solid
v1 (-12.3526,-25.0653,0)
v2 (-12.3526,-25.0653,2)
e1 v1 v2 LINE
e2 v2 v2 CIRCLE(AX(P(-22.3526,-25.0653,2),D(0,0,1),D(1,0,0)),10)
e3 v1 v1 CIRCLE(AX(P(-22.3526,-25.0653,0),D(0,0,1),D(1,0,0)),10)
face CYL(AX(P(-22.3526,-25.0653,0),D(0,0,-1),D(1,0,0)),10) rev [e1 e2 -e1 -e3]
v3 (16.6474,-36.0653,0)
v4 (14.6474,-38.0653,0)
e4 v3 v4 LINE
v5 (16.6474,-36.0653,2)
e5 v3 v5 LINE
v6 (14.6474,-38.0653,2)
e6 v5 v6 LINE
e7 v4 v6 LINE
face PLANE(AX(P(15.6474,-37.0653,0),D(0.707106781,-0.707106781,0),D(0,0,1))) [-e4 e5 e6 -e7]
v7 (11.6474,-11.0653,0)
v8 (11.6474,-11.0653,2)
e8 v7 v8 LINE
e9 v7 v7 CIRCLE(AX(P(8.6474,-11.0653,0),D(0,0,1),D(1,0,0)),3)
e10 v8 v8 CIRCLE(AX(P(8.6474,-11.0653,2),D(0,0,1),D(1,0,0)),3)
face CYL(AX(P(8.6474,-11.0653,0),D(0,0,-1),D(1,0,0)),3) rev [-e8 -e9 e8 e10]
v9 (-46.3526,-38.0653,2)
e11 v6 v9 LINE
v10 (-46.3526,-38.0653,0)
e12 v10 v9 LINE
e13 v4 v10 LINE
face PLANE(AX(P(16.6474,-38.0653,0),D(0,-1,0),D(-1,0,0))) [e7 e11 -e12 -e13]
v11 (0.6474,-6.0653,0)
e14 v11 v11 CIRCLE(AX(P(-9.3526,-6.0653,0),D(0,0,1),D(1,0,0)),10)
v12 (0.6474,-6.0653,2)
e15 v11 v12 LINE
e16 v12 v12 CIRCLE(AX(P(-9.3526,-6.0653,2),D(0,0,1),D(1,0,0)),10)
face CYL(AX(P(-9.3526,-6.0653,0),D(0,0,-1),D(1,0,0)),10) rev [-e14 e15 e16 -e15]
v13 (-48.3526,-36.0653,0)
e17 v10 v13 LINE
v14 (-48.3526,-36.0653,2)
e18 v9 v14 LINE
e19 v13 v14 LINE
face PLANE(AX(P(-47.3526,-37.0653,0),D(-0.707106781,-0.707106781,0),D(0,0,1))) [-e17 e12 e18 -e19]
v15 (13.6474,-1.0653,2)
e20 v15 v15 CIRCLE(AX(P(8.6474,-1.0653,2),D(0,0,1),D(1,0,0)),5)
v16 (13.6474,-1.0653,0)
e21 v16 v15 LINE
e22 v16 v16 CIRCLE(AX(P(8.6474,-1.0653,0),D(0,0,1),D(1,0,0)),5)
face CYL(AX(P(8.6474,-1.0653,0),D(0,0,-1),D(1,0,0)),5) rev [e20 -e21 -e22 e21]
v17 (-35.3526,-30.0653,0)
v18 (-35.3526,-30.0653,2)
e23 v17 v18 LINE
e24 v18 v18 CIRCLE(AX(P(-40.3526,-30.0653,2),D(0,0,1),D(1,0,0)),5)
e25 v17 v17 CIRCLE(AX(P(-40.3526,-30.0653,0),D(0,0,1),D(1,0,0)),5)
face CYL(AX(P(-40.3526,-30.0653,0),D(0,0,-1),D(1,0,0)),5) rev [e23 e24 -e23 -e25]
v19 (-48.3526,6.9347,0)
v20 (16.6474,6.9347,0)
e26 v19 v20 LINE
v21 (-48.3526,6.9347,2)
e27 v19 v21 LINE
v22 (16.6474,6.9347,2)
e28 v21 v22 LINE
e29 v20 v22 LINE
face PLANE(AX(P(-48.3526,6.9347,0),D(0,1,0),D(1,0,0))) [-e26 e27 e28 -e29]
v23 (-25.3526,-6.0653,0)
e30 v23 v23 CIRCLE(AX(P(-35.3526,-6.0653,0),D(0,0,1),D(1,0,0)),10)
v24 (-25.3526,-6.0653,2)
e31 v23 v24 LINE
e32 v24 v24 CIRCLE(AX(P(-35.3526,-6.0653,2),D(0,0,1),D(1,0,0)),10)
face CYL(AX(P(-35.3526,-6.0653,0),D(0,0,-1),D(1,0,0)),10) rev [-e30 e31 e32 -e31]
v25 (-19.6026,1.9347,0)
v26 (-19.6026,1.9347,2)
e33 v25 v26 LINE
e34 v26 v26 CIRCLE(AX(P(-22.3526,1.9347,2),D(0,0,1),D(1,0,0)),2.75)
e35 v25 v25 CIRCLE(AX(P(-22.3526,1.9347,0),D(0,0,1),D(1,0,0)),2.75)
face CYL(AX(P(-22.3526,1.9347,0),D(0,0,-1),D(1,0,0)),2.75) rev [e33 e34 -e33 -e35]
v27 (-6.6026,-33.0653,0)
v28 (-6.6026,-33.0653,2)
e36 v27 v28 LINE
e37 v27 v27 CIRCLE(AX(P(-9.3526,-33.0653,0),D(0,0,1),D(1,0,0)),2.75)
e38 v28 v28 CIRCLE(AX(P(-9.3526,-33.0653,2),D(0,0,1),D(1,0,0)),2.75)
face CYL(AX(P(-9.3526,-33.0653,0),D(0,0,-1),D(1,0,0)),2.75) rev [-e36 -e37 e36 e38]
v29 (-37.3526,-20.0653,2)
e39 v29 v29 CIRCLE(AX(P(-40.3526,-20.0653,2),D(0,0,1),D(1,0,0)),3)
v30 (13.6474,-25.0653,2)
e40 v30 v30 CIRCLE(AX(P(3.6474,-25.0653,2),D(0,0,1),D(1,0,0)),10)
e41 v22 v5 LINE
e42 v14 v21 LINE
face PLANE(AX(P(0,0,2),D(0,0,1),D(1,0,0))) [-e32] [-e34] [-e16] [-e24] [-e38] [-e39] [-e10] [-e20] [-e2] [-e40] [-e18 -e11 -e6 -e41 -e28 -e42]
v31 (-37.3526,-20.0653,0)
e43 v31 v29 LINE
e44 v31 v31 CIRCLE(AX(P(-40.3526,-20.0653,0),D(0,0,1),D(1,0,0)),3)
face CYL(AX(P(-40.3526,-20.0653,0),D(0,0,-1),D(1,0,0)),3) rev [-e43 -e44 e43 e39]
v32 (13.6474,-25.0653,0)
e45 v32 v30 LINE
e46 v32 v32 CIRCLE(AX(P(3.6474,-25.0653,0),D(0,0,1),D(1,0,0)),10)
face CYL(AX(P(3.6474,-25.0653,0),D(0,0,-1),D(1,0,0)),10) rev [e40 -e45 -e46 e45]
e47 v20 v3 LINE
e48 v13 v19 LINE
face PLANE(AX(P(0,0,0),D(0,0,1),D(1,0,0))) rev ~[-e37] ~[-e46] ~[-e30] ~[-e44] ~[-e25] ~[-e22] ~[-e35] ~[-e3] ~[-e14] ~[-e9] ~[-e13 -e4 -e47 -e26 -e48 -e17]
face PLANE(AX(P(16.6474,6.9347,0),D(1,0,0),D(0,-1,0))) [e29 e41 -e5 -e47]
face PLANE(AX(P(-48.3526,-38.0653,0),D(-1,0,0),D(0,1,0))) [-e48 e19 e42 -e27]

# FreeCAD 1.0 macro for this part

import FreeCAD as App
import Part
import Sketcher
Q = App.Units.Quantity


def edges_at(feature, points):
    """Names of the edges that pass closest to the given points."""
    edges = feature.Shape.Edges
    near = lambda p: min(range(len(edges)), key=lambda i: edges[i].distToShape(Part.Vertex(*p))[0])
    return sorted({f"Edge{near(p) + 1}" for p in points})

doc = App.newDocument("Part")
body = doc.addObject("PartDesign::Body", "Body")

sketch1 = body.newObject("Sketcher::SketchObject", "Sketch")
sketch1.AttachmentSupport = (doc.getObject("XY_Plane"), [""])
sketch1.MapMode = "FlatFace"
sketch1.addGeometry(Part.LineSegment(App.Vector(16.6, 6.9, 0), App.Vector(-48.4, 6.9, 0)), False)
sketch1.addGeometry(Part.LineSegment(App.Vector(-48.4, 6.9, 0), App.Vector(-48.4, -38.1, 0)), False)
sketch1.addGeometry(Part.LineSegment(App.Vector(-48.4, -38.1, 0), App.Vector(16.6, -38.1, 0)), False)
sketch1.addGeometry(Part.LineSegment(App.Vector(16.6, -38.1, 0), App.Vector(16.6, 6.9, 0)), False)
sketch1.addGeometry(Part.Circle(App.Vector(-40.4, -30.1, 0), App.Vector(0, 0, 1), 5), False)
sketch1.addGeometry(Part.Circle(App.Vector(-40.4, -20.1, 0), App.Vector(0, 0, 1), 3), False)
sketch1.addGeometry(Part.Circle(App.Vector(-22.4, -25.1, 0), App.Vector(0, 0, 1), 10), False)
sketch1.addGeometry(Part.Circle(App.Vector(-9.4, -33.1, 0), App.Vector(0, 0, 1), 2.8), False)
sketch1.addGeometry(Part.Circle(App.Vector(3.6, -25.1, 0), App.Vector(0, 0, 1), 10), False)
sketch1.addGeometry(Part.Circle(App.Vector(-35.4, -6.1, 0), App.Vector(0, 0, 1), 10), False)
sketch1.addGeometry(Part.Circle(App.Vector(-22.4, 1.9, 0), App.Vector(0, 0, 1), 2.8), False)
sketch1.addGeometry(Part.Circle(App.Vector(-9.4, -6.1, 0), App.Vector(0, 0, 1), 10), False)
sketch1.addGeometry(Part.Circle(App.Vector(8.6, -11.1, 0), App.Vector(0, 0, 1), 3), False)
sketch1.addGeometry(Part.Circle(App.Vector(8.6, -1.1, 0), App.Vector(0, 0, 1), 5), False)
sketch1.addConstraint(Sketcher.Constraint("Coincident", 0, 2, 1, 1))
sketch1.addConstraint(Sketcher.Constraint("Coincident", 1, 2, 2, 1))
sketch1.addConstraint(Sketcher.Constraint("Coincident", 2, 2, 3, 1))
sketch1.addConstraint(Sketcher.Constraint("Coincident", 3, 2, 0, 1))
sketch1.addConstraint(Sketcher.Constraint("Horizontal", 0))
sketch1.addConstraint(Sketcher.Constraint("Vertical", 1))
sketch1.addConstraint(Sketcher.Constraint("Horizontal", 2))
sketch1.addConstraint(Sketcher.Constraint("Vertical", 3))
sketch1.addConstraint(Sketcher.Constraint("Equal", 6, 8))
sketch1.addConstraint(Sketcher.Constraint("Equal", 8, 9))
sketch1.addConstraint(Sketcher.Constraint("Equal", 7, 10))
sketch1.addConstraint(Sketcher.Constraint("Equal", 9, 11))
sketch1.addConstraint(Sketcher.Constraint("Equal", 5, 12))
sketch1.addConstraint(Sketcher.Constraint("Equal", 4, 13))
sketch1.addConstraint(Sketcher.Constraint("Horizontal", 6, 3, 8, 3))
sketch1.addConstraint(Sketcher.Constraint("Horizontal", 9, 3, 11, 3))
sketch1.addConstraint(Sketcher.Constraint("Vertical", 4, 3, 5, 3))
sketch1.addConstraint(Sketcher.Constraint("Vertical", 6, 3, 10, 3))
sketch1.addConstraint(Sketcher.Constraint("Vertical", 7, 3, 11, 3))
sketch1.addConstraint(Sketcher.Constraint("Vertical", 12, 3, 13, 3))
sketch1.addConstraint(Sketcher.Constraint("Diameter", 4, Q("10 mm")))
sketch1.addConstraint(Sketcher.Constraint("Diameter", 5, Q("6 mm")))
sketch1.addConstraint(Sketcher.Constraint("Diameter", 6, Q("20 mm")))
sketch1.addConstraint(Sketcher.Constraint("Diameter", 7, Q("5.5 mm")))
sketch1.addConstraint(Sketcher.Constraint("DistanceX", 0, 2, 0, 1, Q("65 mm")))
sketch1.addConstraint(Sketcher.Constraint("DistanceY", 1, 2, 1, 1, Q("45 mm")))
sketch1.addConstraint(Sketcher.Constraint("DistanceY", 4, 3, 5, 3, Q("10 mm")))
sketch1.addConstraint(Sketcher.Constraint("DistanceX", 4, 3, 6, 3, Q("18 mm")))
sketch1.addConstraint(Sketcher.Constraint("DistanceY", 4, 3, 6, 3, Q("5 mm")))
sketch1.addConstraint(Sketcher.Constraint("DistanceX", 6, 3, 7, 3, Q("13 mm")))
sketch1.addConstraint(Sketcher.Constraint("DistanceY", 7, 3, 6, 3, Q("8 mm")))
sketch1.addConstraint(Sketcher.Constraint("DistanceX", 7, 3, 8, 3, Q("13 mm")))
sketch1.addConstraint(Sketcher.Constraint("DistanceX", 5, 3, 9, 3, Q("5 mm")))
sketch1.addConstraint(Sketcher.Constraint("DistanceY", 9, 3, 10, 3, Q("8 mm")))
sketch1.addConstraint(Sketcher.Constraint("DistanceX", 8, 3, 12, 3, Q("5 mm")))
sketch1.addConstraint(Sketcher.Constraint("DistanceY", 12, 3, 11, 3, Q("5 mm")))
sketch1.addConstraint(Sketcher.Constraint("DistanceY", 12, 3, 13, 3, Q("10 mm")))
sketch1.addConstraint(Sketcher.Constraint("DistanceX", 0, 2, 9, 3, Q("13 mm")))
sketch1.addConstraint(Sketcher.Constraint("DistanceY", 9, 3, 0, 2, Q("13 mm")))
sketch1.addConstraint(Sketcher.Constraint("DistanceY", 1, 2, 4, 3, Q("8 mm")))
sketch1.addConstraint(Sketcher.Constraint("DistanceX", 4, 3, -1, 1, Q("40.3526 mm")))
sketch1.addConstraint(Sketcher.Constraint("DistanceY", 4, 3, -1, 1, Q("30.0653 mm")))
pad1 = body.newObject("PartDesign::Pad", "Pad")
pad1.Profile = sketch1
pad1.Length = 2
doc.recompute()

chamfer = body.newObject("PartDesign::Chamfer", "Chamfer")
chamfer.Base = (pad1, edges_at(pad1, [(-48.353, -38.065, 1), (16.647, -38.065, 1)]))
chamfer.Size = 2

doc.recompute()
